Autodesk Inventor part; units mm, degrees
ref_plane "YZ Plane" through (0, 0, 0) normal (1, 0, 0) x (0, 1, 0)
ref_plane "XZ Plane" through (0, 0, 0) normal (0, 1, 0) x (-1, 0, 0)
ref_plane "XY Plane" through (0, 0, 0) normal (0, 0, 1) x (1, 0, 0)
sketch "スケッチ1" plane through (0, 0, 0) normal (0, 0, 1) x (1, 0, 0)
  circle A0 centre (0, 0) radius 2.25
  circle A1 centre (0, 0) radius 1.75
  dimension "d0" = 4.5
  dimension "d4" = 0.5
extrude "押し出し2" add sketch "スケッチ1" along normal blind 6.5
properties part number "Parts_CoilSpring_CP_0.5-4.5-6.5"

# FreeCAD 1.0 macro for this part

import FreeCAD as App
import Part
import Sketcher
from FreeCAD import Vector

doc = App.newDocument("Part")
params = doc.addObject("Spreadsheet::Sheet", "Params")
for row, (alias, value) in enumerate([
    ("sketch1_diameter", "4.5 mm"),
    ("sketch1_diameter2", "3.5 mm"),
    ("pad1_length", "6.5 mm"),
], start=1):
    params.set(f"A{row}", alias)
    params.set(f"B{row}", "=" + value)
    params.setAlias(f"B{row}", alias)

body = doc.addObject("PartDesign::Body", "Body")

# Sketch on XY plane
sketch1 = body.newObject("Sketcher::SketchObject", "Sketch")
sketch1.AttachmentSupport = (doc.getObject("XY_Plane"), [""])
sketch1.MapMode = "FlatFace"
sketch1.addGeometry(Part.Circle(Vector(0, 0, 0), Vector(0, 0, 1), 2.2), False)
sketch1.addGeometry(Part.Circle(Vector(0, 0, 0), Vector(0, 0, 1), 1.8), False)
sketch1.addConstraint(Sketcher.Constraint("Coincident", 0, 3, -1, 1))
sketch1.addConstraint(Sketcher.Constraint("Coincident", 1, 3, -1, 1))
sketch1.addConstraint(Sketcher.Constraint("Diameter", 0, 4.5))
sketch1.addConstraint(Sketcher.Constraint("Diameter", 1, 3.5))
sketch1.setExpression("Constraints[2]", "Params.sketch1_diameter")
sketch1.setExpression("Constraints[3]", "Params.sketch1_diameter2")
pad1 = body.newObject("PartDesign::Pad", "Pad")
pad1.Profile = sketch1
pad1.setExpression("Length", "Params.pad1_length")

doc.recompute()
